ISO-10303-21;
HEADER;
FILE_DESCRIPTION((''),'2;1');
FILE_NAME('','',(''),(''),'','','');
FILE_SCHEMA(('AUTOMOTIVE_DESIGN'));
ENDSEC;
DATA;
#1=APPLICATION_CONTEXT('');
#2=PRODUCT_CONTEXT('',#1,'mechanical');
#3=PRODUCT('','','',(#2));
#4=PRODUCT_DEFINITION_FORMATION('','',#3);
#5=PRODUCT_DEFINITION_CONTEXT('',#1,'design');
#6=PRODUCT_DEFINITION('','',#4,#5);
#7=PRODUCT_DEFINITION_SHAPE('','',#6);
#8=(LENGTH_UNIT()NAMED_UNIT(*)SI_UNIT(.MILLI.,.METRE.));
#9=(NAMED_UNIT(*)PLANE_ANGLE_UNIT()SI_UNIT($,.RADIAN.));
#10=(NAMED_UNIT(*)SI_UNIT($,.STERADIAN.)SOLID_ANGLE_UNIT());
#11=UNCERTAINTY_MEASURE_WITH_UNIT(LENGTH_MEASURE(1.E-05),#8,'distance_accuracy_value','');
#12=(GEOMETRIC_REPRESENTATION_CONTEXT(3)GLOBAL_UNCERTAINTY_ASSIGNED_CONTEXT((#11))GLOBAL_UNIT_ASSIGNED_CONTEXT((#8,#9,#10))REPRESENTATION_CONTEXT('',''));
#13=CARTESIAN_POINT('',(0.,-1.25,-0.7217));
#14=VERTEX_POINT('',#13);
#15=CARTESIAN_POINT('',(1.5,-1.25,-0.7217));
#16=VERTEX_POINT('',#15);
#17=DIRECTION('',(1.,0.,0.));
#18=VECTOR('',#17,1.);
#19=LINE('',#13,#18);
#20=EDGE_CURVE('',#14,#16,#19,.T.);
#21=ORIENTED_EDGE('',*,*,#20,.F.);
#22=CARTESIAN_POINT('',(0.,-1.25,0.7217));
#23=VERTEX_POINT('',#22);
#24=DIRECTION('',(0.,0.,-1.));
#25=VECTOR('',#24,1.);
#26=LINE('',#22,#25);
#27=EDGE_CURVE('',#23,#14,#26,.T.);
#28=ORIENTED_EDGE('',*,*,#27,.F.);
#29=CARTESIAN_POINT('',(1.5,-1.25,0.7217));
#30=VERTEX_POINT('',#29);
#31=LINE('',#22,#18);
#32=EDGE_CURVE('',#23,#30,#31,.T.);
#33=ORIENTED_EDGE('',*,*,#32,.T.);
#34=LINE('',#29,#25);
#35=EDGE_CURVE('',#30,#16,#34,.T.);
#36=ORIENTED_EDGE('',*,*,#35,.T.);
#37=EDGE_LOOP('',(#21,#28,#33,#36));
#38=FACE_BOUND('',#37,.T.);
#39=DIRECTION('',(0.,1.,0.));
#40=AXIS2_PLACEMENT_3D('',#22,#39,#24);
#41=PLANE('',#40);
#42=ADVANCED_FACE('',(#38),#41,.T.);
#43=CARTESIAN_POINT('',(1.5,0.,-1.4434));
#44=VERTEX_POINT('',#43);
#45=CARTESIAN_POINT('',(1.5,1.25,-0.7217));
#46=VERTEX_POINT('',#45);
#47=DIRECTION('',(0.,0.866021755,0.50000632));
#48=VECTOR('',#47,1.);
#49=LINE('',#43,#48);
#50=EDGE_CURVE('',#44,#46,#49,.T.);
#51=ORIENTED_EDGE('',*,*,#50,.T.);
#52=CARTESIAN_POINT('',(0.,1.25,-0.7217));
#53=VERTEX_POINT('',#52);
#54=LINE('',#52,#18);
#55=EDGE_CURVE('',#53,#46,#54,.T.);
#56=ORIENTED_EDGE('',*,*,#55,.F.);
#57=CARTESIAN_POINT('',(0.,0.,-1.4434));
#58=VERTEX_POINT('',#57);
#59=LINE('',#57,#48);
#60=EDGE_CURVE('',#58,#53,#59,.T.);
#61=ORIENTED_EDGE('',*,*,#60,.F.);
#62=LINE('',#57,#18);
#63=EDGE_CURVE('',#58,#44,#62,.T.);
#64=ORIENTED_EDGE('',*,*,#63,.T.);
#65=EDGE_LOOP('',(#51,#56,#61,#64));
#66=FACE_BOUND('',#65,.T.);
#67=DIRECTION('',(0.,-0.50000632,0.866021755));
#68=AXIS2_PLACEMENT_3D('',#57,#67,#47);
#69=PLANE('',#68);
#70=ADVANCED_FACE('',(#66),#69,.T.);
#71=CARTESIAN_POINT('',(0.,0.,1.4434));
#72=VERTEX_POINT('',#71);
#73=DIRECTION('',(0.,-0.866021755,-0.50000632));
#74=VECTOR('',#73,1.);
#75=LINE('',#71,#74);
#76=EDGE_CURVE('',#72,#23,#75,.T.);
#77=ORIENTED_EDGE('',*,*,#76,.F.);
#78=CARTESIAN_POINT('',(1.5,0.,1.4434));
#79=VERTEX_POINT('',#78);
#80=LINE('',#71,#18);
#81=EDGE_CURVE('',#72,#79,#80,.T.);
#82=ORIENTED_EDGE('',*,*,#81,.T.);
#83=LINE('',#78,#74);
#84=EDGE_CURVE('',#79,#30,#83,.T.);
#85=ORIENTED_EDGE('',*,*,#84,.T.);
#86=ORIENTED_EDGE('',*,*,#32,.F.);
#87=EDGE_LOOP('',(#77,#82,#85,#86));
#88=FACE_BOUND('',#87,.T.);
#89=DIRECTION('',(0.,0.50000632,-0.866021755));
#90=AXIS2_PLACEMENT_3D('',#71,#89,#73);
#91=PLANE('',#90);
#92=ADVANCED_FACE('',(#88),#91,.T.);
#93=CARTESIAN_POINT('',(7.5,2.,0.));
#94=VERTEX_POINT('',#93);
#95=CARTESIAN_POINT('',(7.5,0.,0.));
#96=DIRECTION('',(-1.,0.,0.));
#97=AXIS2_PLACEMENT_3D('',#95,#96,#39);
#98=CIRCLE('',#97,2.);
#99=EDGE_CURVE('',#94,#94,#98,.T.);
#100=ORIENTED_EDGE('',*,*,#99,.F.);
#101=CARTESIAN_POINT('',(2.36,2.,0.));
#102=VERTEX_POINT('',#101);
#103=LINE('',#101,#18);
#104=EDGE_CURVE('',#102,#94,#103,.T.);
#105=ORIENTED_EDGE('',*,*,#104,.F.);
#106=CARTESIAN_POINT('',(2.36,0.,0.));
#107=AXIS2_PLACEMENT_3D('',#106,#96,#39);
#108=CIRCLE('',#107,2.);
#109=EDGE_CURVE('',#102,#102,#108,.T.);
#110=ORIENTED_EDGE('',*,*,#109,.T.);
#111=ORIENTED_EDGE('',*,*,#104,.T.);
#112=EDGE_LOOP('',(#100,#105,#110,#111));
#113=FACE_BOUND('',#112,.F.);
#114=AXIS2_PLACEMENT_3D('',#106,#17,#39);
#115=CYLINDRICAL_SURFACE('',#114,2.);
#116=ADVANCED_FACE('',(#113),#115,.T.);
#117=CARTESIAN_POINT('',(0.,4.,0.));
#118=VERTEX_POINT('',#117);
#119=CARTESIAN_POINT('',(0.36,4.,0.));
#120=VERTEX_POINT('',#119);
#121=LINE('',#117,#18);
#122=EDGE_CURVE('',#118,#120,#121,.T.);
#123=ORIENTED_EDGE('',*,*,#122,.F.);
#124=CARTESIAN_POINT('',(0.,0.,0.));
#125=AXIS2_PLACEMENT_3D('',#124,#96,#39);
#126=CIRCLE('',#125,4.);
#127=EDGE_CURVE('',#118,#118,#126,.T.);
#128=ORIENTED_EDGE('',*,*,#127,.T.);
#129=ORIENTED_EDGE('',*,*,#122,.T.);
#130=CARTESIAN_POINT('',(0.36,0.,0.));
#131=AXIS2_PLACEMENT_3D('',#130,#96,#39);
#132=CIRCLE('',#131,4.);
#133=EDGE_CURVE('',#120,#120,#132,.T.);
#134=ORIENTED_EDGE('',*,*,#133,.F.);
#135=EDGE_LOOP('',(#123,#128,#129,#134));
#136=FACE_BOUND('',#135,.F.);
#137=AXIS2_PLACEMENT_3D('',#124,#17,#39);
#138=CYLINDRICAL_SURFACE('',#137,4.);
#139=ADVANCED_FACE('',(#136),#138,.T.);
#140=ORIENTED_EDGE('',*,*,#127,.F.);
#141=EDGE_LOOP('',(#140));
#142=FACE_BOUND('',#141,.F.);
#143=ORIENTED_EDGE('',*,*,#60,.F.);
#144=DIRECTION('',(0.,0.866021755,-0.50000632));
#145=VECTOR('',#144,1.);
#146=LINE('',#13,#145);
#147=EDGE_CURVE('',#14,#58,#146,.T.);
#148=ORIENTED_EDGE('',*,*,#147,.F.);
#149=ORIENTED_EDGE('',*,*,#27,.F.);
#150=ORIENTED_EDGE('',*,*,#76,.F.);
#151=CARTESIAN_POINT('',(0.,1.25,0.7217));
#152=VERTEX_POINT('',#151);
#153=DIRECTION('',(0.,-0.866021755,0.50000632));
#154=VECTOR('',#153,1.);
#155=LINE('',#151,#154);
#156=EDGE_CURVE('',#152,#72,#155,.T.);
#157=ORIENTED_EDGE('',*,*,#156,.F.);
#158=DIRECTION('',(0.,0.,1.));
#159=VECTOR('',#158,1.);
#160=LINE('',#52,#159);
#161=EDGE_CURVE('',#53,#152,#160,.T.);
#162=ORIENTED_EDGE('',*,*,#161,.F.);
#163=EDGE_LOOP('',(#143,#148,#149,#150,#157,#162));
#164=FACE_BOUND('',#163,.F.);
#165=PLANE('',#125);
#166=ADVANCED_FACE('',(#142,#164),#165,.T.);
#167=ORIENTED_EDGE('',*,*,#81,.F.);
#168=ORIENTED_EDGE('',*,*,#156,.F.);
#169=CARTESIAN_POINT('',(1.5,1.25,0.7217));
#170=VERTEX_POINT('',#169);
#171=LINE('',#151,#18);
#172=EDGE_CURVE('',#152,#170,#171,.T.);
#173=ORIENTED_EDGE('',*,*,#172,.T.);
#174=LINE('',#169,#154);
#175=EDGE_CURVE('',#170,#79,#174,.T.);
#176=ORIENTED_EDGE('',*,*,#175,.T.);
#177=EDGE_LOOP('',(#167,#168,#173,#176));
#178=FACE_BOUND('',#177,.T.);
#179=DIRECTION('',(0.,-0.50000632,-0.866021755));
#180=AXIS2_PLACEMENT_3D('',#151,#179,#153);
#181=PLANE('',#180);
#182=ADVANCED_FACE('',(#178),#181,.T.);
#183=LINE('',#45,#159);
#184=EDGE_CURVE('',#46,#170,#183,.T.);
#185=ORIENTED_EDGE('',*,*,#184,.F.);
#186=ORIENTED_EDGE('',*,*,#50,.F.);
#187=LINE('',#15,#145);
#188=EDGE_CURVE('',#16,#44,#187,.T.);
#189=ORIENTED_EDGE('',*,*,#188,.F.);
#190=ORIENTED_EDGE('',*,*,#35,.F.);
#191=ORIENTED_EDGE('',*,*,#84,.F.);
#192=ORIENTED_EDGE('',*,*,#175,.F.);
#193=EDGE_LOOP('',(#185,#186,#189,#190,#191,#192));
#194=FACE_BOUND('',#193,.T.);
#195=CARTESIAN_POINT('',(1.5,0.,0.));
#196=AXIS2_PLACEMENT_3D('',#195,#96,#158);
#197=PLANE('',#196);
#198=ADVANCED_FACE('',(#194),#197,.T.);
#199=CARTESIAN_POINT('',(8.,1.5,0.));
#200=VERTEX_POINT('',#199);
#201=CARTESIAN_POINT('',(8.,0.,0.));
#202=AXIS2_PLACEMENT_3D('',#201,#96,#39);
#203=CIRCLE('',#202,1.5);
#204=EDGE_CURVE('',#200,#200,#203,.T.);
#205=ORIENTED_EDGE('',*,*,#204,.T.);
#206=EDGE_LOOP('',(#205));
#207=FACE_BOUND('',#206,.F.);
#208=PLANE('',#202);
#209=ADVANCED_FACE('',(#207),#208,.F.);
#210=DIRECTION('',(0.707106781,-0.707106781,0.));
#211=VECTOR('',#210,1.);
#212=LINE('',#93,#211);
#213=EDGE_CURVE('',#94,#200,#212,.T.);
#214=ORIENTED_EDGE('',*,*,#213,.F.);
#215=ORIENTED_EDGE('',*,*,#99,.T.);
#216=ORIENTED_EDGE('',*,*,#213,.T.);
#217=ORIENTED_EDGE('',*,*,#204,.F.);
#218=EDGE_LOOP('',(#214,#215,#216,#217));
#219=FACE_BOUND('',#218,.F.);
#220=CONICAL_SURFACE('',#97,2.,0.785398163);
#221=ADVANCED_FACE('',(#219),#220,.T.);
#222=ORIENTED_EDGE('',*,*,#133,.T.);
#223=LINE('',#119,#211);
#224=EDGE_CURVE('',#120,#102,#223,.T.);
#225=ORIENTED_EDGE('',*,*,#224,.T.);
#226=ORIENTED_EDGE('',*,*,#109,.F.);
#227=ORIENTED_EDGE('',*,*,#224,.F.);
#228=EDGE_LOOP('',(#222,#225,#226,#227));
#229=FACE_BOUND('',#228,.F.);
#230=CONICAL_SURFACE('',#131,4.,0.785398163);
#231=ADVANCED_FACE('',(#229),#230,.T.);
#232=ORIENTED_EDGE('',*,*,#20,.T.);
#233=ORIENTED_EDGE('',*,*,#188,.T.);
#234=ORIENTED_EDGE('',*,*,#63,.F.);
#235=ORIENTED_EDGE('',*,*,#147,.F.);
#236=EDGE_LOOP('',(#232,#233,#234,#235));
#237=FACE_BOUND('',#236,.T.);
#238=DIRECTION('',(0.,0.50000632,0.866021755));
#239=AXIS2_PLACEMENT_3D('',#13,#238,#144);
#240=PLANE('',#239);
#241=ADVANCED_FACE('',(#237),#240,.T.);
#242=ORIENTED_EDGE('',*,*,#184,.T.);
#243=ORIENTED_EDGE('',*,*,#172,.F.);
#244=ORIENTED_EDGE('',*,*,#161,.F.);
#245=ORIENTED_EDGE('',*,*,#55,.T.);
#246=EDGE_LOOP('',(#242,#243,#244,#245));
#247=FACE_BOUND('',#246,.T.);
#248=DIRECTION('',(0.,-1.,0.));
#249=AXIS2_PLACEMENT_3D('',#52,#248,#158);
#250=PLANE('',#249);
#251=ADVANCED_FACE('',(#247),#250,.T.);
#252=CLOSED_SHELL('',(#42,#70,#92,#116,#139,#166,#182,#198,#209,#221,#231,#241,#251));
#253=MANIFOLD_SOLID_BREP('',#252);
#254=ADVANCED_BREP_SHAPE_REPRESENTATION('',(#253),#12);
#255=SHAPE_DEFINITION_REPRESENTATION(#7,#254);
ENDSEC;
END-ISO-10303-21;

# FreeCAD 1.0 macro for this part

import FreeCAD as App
import Part
import Sketcher

V = App.Vector
Q = App.Units.Quantity


def edges_at(feature, points):
    """Names of the edges that pass closest to the given points."""
    edges = feature.Shape.Edges
    near = lambda p: min(range(len(edges)), key=lambda i: edges[i].distToShape(Part.Vertex(*p))[0])
    return sorted({f"Edge{near(p) + 1}" for p in points})

doc = App.newDocument("Part")
body = doc.addObject("PartDesign::Body", "Body")

sketch1 = body.newObject("Sketcher::SketchObject", "Sketch")
sketch1.AttachmentSupport = (doc.getObject("XY_Plane"), [""])
sketch1.MapMode = "FlatFace"
sketch1.addGeometry([
    Part.LineSegment(V(0, 4, 0), V(0, 0, 0)),
    Part.LineSegment(V(0, 0, 0), V(8, 0, 0)),
    Part.LineSegment(V(8, 0, 0), V(8, 2, 0)),
    Part.LineSegment(V(8, 2, 0), V(2.36, 2, 0)),
    Part.LineSegment(V(2.36, 2, 0), V(0.36, 4, 0)),
    Part.LineSegment(V(0.36, 4, 0), V(0, 4, 0)),
], False)
sketch1.addConstraint([
    Sketcher.Constraint("Coincident", 0, 2, 1, 1),
    Sketcher.Constraint("Coincident", 1, 2, 2, 1),
    Sketcher.Constraint("Coincident", 2, 2, 3, 1),
    Sketcher.Constraint("Coincident", 3, 2, 4, 1),
    Sketcher.Constraint("Coincident", 4, 2, 5, 1),
    Sketcher.Constraint("Coincident", 5, 2, 0, 1),
    Sketcher.Constraint("Vertical", 0),
    Sketcher.Constraint("Horizontal", 1),
    Sketcher.Constraint("Vertical", 2),
    Sketcher.Constraint("Horizontal", 3),
    Sketcher.Constraint("Horizontal", 5),
    Sketcher.Constraint("Coincident", 0, 2, -1, 1),
    Sketcher.Constraint("DistanceX", 1, 1, 1, 2, 8.0),
    Sketcher.Constraint("DistanceY", 0, 2, 0, 1, 4.0),
    Sketcher.Constraint("DistanceY", 2, 1, 2, 2, 2.0),
    Sketcher.Constraint("Angle", 4, Q("135 deg")),
    Sketcher.Constraint("DistanceX", 5, 2, 5, 1, 0.36),
])
revolution = body.newObject("PartDesign::Revolution", "Revolution")
revolution.Profile = sketch1
revolution.ReferenceAxis = (sketch1, ["H_Axis"])
revolution.Angle = 360
doc.recompute()

chamfer = body.newObject("PartDesign::Chamfer", "Chamfer")
chamfer.Base = (revolution, edges_at(revolution, [(8, -2, 0)]))
chamfer.Size = 0.5

sketch2 = body.newObject("Sketcher::SketchObject", "Sketch001")
sketch2.AttachmentSupport = (doc.getObject("YZ_Plane"), [""])
sketch2.MapMode = "FlatFace"
sketch2.addGeometry([
    Part.LineSegment(V(1.2, -0.7, 0), V(0, -1.4, 0)),
    Part.LineSegment(V(0, -1.4, 0), V(-1.2, -0.7, 0)),
    Part.LineSegment(V(-1.2, -0.7, 0), V(-1.2, 0.7, 0)),
    Part.LineSegment(V(-1.2, 0.7, 0), V(0, 1.4, 0)),
    Part.LineSegment(V(0, 1.4, 0), V(1.2, 0.7, 0)),
    Part.LineSegment(V(1.2, 0.7, 0), V(1.2, -0.7, 0)),
], False)
sketch2.addConstraint([
    Sketcher.Constraint("Coincident", 0, 2, 1, 1),
    Sketcher.Constraint("Coincident", 1, 2, 2, 1),
    Sketcher.Constraint("Coincident", 2, 2, 3, 1),
    Sketcher.Constraint("Coincident", 3, 2, 4, 1),
    Sketcher.Constraint("Coincident", 4, 2, 5, 1),
    Sketcher.Constraint("Coincident", 5, 2, 0, 1),
    Sketcher.Constraint("Vertical", 2),
    Sketcher.Constraint("Vertical", 5),
    Sketcher.Constraint("Symmetric", 0, 2, 3, 2, -1, 1),
    Sketcher.Constraint("Symmetric", 1, 2, 4, 2, -1, 1),
    Sketcher.Constraint("PointOnObject", 0, 2, -2),
    Sketcher.Constraint("Parallel", 0, 3),
    Sketcher.Constraint("Horizontal", 2, 2, 4, 2),
    Sketcher.Constraint("DistanceX", 2, 2, 4, 2, 2.5),
    Sketcher.Constraint("Angle", 0, Q("-149.9996 deg")),
    Sketcher.Constraint("DistanceY", 2, 1, 2, 2, 1.4434),
])
pocket1 = body.newObject("PartDesign::Pocket", "Pocket")
pocket1.Profile = sketch2
pocket1.Length = 1.5
pocket1.Reversed = True

doc.recompute()
